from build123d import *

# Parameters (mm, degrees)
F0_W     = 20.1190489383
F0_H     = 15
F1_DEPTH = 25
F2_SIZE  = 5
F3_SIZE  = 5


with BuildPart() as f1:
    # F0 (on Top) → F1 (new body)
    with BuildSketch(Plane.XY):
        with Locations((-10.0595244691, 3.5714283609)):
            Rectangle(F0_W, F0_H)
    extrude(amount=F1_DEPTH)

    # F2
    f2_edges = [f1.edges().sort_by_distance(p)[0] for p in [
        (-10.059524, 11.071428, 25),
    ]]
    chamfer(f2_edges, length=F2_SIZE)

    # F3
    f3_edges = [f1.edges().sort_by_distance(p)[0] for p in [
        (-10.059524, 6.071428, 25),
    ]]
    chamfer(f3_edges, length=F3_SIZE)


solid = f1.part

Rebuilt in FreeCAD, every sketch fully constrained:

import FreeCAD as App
import Part
import Sketcher


def edges_at(feature, points):
    """Names of the edges that pass closest to the given points."""
    edges = feature.Shape.Edges
    near = lambda p: min(range(len(edges)), key=lambda i: edges[i].distToShape(Part.Vertex(*p))[0])
    return sorted({f"Edge{near(p) + 1}" for p in points})


def add_polygon(sketch, points):
    """Adds a closed chain of lines whose ends are joined by coincident constraints."""
    first, n = sketch.GeometryCount, len(points)
    for a, b in zip(points, points[1:] + points[:1]):
        sketch.addGeometry(Part.LineSegment(App.Vector(*a, 0), App.Vector(*b, 0)), False)
    for i in range(n):
        sketch.addConstraint(Sketcher.Constraint("Coincident", first + i, 2, first + (i + 1) % n, 1))

doc = App.newDocument("Part")
body = doc.addObject("PartDesign::Body", "Body")

# Sketch on XY plane
sketch1 = body.newObject("Sketcher::SketchObject", "Sketch")
sketch1.AttachmentSupport = (doc.getObject("XY_Plane"), [""])
sketch1.MapMode = "FlatFace"
add_polygon(sketch1, [(-20.119049, 11.071428), (-20.119049, -3.928572), (0, -3.928572), (0, 11.071428)])  # lines 0-3
sketch1.addConstraint([
    Sketcher.Constraint("Vertical", 0),
    Sketcher.Constraint("Horizontal", 1),
    Sketcher.Constraint("Vertical", 2),
    Sketcher.Constraint("Horizontal", 3),
    Sketcher.Constraint("PointOnObject", 1, 2, -2),
    Sketcher.Constraint("DistanceY", 0, 2, 0, 1, 15.0),
    Sketcher.Constraint("DistanceX", 1, 1, 1, 2, 20.119049),
    Sketcher.Constraint("DistanceY", 0, 2, -1, 1, 3.928572),
])
pad1 = body.newObject("PartDesign::Pad", "Pad")
pad1.Profile = sketch1
pad1.Length = 25
doc.recompute()

chamfer = body.newObject("PartDesign::Chamfer", "Chamfer")
chamfer.Base = (pad1, edges_at(pad1, [(-10.06, 11.071, 25)]))
chamfer.Size = 5
doc.recompute()

chamfer2 = body.newObject("PartDesign::Chamfer", "Chamfer001")
chamfer2.Base = (chamfer, edges_at(chamfer, [(-10.06, 6.071, 25)]))
chamfer2.Size = 5

doc.recompute()
